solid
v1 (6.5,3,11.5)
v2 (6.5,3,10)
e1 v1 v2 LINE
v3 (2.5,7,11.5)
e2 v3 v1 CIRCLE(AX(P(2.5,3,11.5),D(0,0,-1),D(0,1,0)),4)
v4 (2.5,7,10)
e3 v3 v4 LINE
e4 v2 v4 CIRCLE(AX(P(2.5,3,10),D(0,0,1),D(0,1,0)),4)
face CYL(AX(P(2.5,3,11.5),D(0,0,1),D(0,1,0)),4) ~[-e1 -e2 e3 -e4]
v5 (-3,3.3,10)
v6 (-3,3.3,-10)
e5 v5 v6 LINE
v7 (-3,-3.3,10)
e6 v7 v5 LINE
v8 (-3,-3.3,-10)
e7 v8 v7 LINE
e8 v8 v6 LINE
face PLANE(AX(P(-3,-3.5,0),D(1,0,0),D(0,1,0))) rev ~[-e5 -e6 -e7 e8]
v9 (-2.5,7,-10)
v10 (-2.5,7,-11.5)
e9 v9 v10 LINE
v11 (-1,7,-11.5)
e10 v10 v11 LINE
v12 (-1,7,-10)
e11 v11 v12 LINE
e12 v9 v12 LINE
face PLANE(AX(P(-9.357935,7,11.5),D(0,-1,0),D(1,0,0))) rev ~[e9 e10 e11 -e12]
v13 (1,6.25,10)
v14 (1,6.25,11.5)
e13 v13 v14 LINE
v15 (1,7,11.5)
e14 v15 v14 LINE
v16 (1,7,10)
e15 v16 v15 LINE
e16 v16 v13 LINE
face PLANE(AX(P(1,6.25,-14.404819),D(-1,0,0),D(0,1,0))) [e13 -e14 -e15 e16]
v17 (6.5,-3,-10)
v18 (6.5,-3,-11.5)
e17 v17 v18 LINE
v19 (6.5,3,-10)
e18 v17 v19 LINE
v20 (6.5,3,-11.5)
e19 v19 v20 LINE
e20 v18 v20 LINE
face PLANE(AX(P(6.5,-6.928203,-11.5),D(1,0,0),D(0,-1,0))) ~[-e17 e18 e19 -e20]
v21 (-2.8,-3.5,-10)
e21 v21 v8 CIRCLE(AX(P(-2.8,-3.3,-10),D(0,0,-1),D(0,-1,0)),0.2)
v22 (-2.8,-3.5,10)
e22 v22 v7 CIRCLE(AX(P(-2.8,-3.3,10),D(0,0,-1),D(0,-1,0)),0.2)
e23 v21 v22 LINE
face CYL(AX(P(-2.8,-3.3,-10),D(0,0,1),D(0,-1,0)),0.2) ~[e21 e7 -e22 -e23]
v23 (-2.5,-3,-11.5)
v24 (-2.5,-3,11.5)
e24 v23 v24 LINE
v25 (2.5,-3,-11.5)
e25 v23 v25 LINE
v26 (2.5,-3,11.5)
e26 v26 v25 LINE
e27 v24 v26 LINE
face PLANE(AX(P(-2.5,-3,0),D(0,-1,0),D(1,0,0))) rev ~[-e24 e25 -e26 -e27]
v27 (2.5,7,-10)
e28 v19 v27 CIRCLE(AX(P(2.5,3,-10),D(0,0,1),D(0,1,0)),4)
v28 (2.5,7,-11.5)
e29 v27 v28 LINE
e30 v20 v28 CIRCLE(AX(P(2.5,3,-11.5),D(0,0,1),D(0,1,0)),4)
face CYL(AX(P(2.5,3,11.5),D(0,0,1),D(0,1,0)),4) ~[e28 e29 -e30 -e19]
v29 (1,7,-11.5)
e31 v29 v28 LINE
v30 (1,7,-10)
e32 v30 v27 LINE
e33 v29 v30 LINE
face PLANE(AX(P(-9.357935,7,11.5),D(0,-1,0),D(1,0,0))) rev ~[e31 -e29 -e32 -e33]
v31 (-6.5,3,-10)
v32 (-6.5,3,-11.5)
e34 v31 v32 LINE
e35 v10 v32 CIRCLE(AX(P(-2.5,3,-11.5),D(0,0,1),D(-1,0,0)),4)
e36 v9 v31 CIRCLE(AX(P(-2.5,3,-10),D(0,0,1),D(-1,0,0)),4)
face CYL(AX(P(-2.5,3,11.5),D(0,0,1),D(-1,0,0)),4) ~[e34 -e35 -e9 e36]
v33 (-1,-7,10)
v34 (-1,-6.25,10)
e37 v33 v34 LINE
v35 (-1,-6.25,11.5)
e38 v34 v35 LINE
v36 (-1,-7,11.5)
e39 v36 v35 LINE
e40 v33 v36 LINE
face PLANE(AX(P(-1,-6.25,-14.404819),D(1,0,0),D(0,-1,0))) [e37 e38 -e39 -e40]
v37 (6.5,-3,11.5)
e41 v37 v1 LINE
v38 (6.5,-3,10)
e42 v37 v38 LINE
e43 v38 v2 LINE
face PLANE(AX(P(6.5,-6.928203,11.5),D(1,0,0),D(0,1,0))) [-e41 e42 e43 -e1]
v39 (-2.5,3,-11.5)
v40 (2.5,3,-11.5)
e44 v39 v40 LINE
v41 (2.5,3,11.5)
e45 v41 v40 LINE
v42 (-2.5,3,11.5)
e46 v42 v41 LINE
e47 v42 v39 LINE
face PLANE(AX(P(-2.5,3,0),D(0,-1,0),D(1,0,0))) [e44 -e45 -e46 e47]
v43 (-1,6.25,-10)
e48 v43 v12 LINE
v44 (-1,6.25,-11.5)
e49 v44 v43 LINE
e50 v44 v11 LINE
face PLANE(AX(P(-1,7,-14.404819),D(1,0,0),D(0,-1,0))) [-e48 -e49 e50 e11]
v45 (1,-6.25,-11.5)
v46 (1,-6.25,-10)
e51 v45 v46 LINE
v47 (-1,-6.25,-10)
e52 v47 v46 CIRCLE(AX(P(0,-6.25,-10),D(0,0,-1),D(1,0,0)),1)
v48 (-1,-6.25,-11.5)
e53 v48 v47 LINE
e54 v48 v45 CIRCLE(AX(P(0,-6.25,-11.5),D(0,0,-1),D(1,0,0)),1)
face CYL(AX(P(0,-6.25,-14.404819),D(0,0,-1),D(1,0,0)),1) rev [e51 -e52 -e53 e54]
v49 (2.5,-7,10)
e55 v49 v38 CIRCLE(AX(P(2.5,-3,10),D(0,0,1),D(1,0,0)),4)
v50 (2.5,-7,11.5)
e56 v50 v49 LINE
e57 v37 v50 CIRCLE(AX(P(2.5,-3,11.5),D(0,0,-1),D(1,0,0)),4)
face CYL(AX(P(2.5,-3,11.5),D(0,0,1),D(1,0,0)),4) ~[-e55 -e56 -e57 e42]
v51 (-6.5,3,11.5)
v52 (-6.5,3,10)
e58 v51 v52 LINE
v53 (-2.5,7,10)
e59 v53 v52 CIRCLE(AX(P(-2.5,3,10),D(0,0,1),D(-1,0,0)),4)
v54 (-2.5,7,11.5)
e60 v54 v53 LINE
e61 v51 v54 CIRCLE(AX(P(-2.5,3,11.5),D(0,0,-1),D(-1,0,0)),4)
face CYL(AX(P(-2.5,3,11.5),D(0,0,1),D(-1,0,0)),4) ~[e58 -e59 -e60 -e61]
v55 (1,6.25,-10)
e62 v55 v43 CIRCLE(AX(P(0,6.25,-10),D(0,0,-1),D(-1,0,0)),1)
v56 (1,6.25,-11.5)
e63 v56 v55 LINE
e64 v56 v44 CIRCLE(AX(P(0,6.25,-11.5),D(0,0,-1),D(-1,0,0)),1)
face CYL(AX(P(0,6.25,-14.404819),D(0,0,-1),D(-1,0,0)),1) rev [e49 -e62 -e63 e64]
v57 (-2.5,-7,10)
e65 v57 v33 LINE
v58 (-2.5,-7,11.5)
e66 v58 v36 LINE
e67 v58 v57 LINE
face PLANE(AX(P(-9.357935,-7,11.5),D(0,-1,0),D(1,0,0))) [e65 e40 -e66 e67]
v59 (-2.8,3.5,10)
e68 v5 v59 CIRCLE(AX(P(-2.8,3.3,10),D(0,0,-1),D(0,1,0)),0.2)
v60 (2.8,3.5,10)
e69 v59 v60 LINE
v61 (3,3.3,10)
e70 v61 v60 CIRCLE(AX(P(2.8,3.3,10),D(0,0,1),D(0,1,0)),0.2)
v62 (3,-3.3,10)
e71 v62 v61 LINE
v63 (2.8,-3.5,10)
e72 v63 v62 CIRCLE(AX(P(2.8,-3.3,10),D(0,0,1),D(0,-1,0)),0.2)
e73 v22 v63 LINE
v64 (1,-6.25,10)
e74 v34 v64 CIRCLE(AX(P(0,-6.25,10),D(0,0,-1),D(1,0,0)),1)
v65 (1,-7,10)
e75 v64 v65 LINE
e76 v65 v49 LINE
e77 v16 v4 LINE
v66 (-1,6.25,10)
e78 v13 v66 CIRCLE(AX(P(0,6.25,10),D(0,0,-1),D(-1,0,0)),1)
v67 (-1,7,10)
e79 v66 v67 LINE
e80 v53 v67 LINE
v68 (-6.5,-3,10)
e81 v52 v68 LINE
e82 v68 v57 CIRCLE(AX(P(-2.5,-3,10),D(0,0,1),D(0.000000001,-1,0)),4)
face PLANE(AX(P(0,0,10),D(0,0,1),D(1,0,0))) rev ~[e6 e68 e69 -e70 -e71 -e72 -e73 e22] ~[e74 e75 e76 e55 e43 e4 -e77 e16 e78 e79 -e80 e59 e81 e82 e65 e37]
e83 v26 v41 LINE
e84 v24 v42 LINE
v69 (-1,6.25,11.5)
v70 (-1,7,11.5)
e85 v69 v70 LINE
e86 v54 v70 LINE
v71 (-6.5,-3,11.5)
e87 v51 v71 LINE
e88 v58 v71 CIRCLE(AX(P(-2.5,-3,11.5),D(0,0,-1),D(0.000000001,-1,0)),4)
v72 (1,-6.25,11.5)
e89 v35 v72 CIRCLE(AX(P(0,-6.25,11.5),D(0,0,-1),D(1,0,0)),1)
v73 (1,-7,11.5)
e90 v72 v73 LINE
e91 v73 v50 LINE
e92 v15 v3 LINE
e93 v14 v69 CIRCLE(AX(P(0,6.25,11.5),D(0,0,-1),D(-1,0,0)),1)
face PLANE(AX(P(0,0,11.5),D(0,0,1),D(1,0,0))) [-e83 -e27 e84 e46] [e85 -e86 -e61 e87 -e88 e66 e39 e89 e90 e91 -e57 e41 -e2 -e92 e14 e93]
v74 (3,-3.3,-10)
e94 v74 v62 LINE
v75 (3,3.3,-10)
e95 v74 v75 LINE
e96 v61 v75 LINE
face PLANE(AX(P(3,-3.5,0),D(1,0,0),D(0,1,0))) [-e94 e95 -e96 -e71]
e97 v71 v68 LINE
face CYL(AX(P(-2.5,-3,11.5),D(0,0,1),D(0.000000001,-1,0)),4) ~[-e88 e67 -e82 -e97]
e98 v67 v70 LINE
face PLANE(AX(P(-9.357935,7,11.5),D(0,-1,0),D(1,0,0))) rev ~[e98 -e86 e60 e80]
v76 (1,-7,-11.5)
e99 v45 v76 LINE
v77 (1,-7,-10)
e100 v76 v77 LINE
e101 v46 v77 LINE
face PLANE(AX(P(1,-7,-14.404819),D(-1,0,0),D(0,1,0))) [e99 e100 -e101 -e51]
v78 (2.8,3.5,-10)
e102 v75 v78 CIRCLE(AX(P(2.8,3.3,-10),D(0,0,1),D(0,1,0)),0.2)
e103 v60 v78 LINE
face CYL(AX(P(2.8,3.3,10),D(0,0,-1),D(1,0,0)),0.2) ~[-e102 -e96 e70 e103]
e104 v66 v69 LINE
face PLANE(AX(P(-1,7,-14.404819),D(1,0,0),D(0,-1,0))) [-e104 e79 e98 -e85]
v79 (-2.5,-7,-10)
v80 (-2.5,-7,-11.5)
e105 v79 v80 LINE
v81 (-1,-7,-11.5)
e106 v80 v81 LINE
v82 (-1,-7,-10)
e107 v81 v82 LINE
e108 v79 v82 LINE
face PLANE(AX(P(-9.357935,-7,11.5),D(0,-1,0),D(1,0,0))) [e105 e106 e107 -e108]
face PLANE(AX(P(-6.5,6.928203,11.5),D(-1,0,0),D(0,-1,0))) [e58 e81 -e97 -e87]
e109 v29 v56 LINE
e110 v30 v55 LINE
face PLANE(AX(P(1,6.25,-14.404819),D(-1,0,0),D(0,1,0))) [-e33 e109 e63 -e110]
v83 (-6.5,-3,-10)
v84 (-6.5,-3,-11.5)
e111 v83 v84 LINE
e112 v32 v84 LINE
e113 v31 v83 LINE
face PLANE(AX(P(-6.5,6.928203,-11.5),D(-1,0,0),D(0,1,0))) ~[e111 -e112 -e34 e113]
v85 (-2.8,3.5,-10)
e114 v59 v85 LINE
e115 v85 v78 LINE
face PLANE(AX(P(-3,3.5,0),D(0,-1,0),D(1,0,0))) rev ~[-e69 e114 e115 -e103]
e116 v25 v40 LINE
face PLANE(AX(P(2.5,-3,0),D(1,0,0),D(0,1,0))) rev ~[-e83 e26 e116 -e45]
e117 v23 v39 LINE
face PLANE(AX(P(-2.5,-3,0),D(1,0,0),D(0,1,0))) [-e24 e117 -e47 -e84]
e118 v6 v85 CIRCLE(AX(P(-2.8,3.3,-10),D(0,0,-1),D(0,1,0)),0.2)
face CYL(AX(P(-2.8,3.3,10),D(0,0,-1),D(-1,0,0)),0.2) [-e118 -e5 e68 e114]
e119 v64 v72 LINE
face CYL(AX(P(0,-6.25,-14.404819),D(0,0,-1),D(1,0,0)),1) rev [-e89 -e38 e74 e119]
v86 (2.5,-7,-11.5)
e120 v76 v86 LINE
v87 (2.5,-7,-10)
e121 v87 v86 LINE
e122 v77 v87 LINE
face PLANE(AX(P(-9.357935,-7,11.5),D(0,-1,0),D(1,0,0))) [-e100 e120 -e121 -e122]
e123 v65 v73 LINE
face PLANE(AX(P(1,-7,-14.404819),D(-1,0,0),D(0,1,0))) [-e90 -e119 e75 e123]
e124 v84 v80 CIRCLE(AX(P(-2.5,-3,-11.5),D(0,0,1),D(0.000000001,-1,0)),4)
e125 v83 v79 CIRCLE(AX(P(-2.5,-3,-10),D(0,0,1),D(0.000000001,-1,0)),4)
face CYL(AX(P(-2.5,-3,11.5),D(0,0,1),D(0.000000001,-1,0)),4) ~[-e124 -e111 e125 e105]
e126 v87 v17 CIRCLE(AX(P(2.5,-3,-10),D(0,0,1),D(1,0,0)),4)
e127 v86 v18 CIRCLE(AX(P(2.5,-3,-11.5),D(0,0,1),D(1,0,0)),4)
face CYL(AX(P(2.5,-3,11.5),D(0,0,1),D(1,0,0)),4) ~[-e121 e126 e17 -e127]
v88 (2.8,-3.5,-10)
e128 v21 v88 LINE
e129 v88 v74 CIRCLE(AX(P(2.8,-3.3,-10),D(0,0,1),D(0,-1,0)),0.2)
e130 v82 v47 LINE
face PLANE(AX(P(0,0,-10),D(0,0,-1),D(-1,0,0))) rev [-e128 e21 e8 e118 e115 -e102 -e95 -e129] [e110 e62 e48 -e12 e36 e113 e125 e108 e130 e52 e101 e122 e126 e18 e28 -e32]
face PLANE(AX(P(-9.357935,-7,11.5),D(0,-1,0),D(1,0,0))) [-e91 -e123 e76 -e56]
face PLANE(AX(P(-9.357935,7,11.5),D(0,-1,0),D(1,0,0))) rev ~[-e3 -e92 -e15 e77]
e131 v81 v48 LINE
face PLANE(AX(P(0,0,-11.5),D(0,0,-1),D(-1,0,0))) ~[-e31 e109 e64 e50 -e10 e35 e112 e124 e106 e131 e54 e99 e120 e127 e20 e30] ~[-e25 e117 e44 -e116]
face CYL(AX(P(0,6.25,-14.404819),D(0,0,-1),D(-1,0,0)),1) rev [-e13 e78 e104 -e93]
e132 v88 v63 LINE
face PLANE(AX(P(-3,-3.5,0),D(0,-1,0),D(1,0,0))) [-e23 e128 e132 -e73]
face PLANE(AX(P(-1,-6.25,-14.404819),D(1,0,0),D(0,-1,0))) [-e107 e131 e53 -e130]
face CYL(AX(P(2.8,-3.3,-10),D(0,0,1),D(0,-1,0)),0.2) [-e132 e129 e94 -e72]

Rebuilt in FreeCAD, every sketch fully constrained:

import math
import FreeCAD as App
import Part
import Sketcher
from FreeCAD import Vector


def edges_at(feature, points):
    """Names of the edges that pass closest to the given points."""
    edges = feature.Shape.Edges
    near = lambda p: min(range(len(edges)), key=lambda i: edges[i].distToShape(Part.Vertex(*p))[0])
    return sorted({f"Edge{near(p) + 1}" for p in points})


def add_polygon(sketch, points):
    """Adds a closed chain of lines whose ends are joined by coincident constraints."""
    first, n = sketch.GeometryCount, len(points)
    for a, b in zip(points, points[1:] + points[:1]):
        sketch.addGeometry(Part.LineSegment(App.Vector(*a, 0), App.Vector(*b, 0)), False)
    for i in range(n):
        sketch.addConstraint(Sketcher.Constraint("Coincident", first + i, 2, first + (i + 1) % n, 1))

doc = App.newDocument("Part")
body = doc.addObject("PartDesign::Body", "Body")

sketch1 = body.newObject("Sketcher::SketchObject", "Sketch")
sketch1.AttachmentSupport = (doc.getObject("XY_Plane"), [""])
sketch1.MapMode = "FlatFace"
add_polygon(sketch1, [(-3, 3.5), (-3, -3.5), (3, -3.5), (3, 3.5)])
add_polygon(sketch1, [(2.5, -3), (-2.5, -3), (-2.5, 3), (2.5, 3)])
sketch1.addConstraint(Sketcher.Constraint("Vertical", 0))
sketch1.addConstraint(Sketcher.Constraint("Horizontal", 1))
sketch1.addConstraint(Sketcher.Constraint("Vertical", 2))
sketch1.addConstraint(Sketcher.Constraint("Horizontal", 3))
sketch1.addConstraint(Sketcher.Constraint("Horizontal", 4))
sketch1.addConstraint(Sketcher.Constraint("Vertical", 5))
sketch1.addConstraint(Sketcher.Constraint("Horizontal", 6))
sketch1.addConstraint(Sketcher.Constraint("Vertical", 7))
sketch1.addConstraint(Sketcher.Constraint("Symmetric", 0, 2, 2, 2, -1, 1))
sketch1.addConstraint(Sketcher.Constraint("Symmetric", 4, 2, 6, 2, -1, 1))
sketch1.addConstraint(Sketcher.Constraint("Equal", 3, 5))
sketch1.addConstraint(Sketcher.Constraint("DistanceX", 1, 1, 1, 2, 6.0))
sketch1.addConstraint(Sketcher.Constraint("DistanceX", 4, 2, 4, 1, 5.0))
sketch1.addConstraint(Sketcher.Constraint("DistanceY", 0, 2, 0, 1, 7.0))
pad1 = body.newObject("PartDesign::Pad", "Pad")
pad1.Profile = sketch1
pad1.Length = 23
pad1.Midplane = True

sketch2 = body.newObject("Sketcher::SketchObject", "Sketch001")
sketch2.AttachmentSupport = (doc.getObject("XY_Plane"), [""])
sketch2.MapMode = "FlatFace"
sketch2.AttachmentOffset = App.Placement(Vector(0, 0, 11.5), App.Rotation())
sketch2.addGeometry(Part.LineSegment(Vector(-6.5, 6.928203, 0), Vector(-6.5, -6.928203, 0)), False)
sketch2.addGeometry(Part.ArcOfCircle(Part.Circle(Vector(0, 0, 0), Vector(0, 0, 1), 9.5), math.radians(-133.173551), math.radians(-46.826449)), False)
sketch2.addGeometry(Part.LineSegment(Vector(6.5, -6.928203, 0), Vector(6.5, 6.928203, 0)), False)
sketch2.addGeometry(Part.ArcOfCircle(Part.Circle(Vector(0, 0, 0), Vector(0, 0, 1), 9.5), math.radians(46.826449), math.radians(133.173551)), False)
add_polygon(sketch2, [(3, -3.5), (-3, -3.5), (-3, 3.5), (3, 3.5)])
sketch2.addConstraint(Sketcher.Constraint("Coincident", 0, 2, 1, 1))
sketch2.addConstraint(Sketcher.Constraint("Coincident", 1, 2, 2, 1))
sketch2.addConstraint(Sketcher.Constraint("Coincident", 2, 2, 3, 1))
sketch2.addConstraint(Sketcher.Constraint("Coincident", 3, 2, 0, 1))
sketch2.addConstraint(Sketcher.Constraint("Vertical", 0))
sketch2.addConstraint(Sketcher.Constraint("Vertical", 2))
sketch2.addConstraint(Sketcher.Constraint("Horizontal", 4))
sketch2.addConstraint(Sketcher.Constraint("Vertical", 5))
sketch2.addConstraint(Sketcher.Constraint("Horizontal", 6))
sketch2.addConstraint(Sketcher.Constraint("Vertical", 7))
sketch2.addConstraint(Sketcher.Constraint("Coincident", 1, 3, -1, 1))
sketch2.addConstraint(Sketcher.Constraint("Coincident", 3, 3, -1, 1))
sketch2.addConstraint(Sketcher.Constraint("Equal", 1, 3))
sketch2.addConstraint(Sketcher.Constraint("Symmetric", 4, 2, 6, 2, -1, 1))
sketch2.addConstraint(Sketcher.Constraint("Horizontal", 0, 2, 1, 2))
sketch2.addConstraint(Sketcher.Constraint("Radius", 1, 9.5))
sketch2.addConstraint(Sketcher.Constraint("DistanceX", 4, 2, 4, 1, 6.0))
sketch2.addConstraint(Sketcher.Constraint("DistanceY", 5, 1, 5, 2, 7.0))
sketch2.addConstraint(Sketcher.Constraint("DistanceX", 0, 2, 1, 2, 13.0))
pad2 = body.newObject("PartDesign::Pad", "Pad001")
pad2.Profile = sketch2
pad2.Length = 1.5
pad2.Reversed = True
doc.recompute()

mirrored = body.newObject("PartDesign::Mirrored", "Mirrored")
mirrored.Originals = [pad2]
mirrored.MirrorPlane = (doc.getObject("XY_Plane"), [""])
body.Tip = mirrored

sketch3 = body.newObject("Sketcher::SketchObject", "Sketch002")
sketch3.AttachmentSupport = (doc.getObject("XY_Plane"), [""])
sketch3.MapMode = "FlatFace"
sketch3.AttachmentOffset = App.Placement(Vector(0, 0, 11.5), App.Rotation())
sketch3.addGeometry(Part.Circle(Vector(0, 0, 0), Vector(0, 0, 1), 19.100399), False)
add_polygon(sketch3, [(9.357935, -7), (-9.357935, -7), (-9.357935, 7), (9.357935, 7)])
sketch3.addConstraint(Sketcher.Constraint("Horizontal", 1))
sketch3.addConstraint(Sketcher.Constraint("Vertical", 2))
sketch3.addConstraint(Sketcher.Constraint("Horizontal", 3))
sketch3.addConstraint(Sketcher.Constraint("Vertical", 4))
sketch3.addConstraint(Sketcher.Constraint("Coincident", 0, 3, -1, 1))
sketch3.addConstraint(Sketcher.Constraint("Symmetric", 1, 2, 3, 2, -1, 1))
sketch3.addConstraint(Sketcher.Constraint("DistanceY", 2, 1, 2, 2, 14.0))
sketch3.addConstraint(Sketcher.Constraint("Diameter", 0, 38.200797))
sketch3.addConstraint(Sketcher.Constraint("DistanceX", 1, 2, 1, 1, 18.71587))
pocket1 = body.newObject("PartDesign::Pocket", "Pocket")
pocket1.Profile = sketch3
pocket1.Type = "ThroughAll"

sketch4 = body.newObject("Sketcher::SketchObject", "Sketch003")
sketch4.AttachmentSupport = (doc.getObject("XY_Plane"), [""])
sketch4.MapMode = "FlatFace"
sketch4.AttachmentOffset = App.Placement(Vector(0, 0, 11.5), App.Rotation())
sketch4.addGeometry(Part.LineSegment(Vector(-6.5, 6.928203, 0), Vector(-6.5, 3, 0)), False)
sketch4.addGeometry(Part.ArcOfCircle(Part.Circle(Vector(-2.5, 3, 0), Vector(0, 0, 1), 4), math.radians(90), math.radians(180)), False)
sketch4.addGeometry(Part.LineSegment(Vector(-2.5, 7, 0), Vector(-6.422616, 7, 0)), False)
sketch4.addGeometry(Part.ArcOfCircle(Part.Circle(Vector(-0.000003, 0.000003, 0), Vector(0, 0, 1), 9.499995), math.radians(132.536898), math.radians(133.173551)), False)
sketch4.addGeometry(Part.ArcOfCircle(Part.Circle(Vector(2.5, 3, 0), Vector(0, 0, 1), 4), math.radians(0), math.radians(90)), False)
sketch4.addGeometry(Part.LineSegment(Vector(6.5, 3, 0), Vector(6.5, 6.928203, 0)), False)
sketch4.addGeometry(Part.ArcOfCircle(Part.Circle(Vector(0.000003, 0.000003, 0), Vector(0, 0, 1), 9.499995), math.radians(46.826449), math.radians(47.463102)), False)
sketch4.addGeometry(Part.LineSegment(Vector(6.422616, 7, 0), Vector(2.5, 7, 0)), False)
sketch4.addGeometry(Part.ArcOfCircle(Part.Circle(Vector(2.5, -3, 0), Vector(0, 0, 1), 4), math.radians(-90), math.radians(0)), False)
sketch4.addGeometry(Part.LineSegment(Vector(2.5, -7, 0), Vector(6.422616, -7, 0)), False)
sketch4.addGeometry(Part.ArcOfCircle(Part.Circle(Vector(0.000003, -0.000003, 0), Vector(0, 0, 1), 9.499995), math.radians(-47.463102), math.radians(-46.826449)), False)
sketch4.addGeometry(Part.LineSegment(Vector(6.5, -6.928203, 0), Vector(6.5, -3, 0)), False)
sketch4.addGeometry(Part.ArcOfCircle(Part.Circle(Vector(-0.000003, -0.000003, 0), Vector(0, 0, 1), 9.499995), math.radians(-133.173551), math.radians(-132.536898)), False)
sketch4.addGeometry(Part.LineSegment(Vector(-6.422616, -7, 0), Vector(-2.5, -7, 0)), False)
sketch4.addGeometry(Part.ArcOfCircle(Part.Circle(Vector(-2.5, -3, 0), Vector(0, 0, 1), 4), math.radians(180), math.radians(270)), False)
sketch4.addGeometry(Part.LineSegment(Vector(-6.5, -3, 0), Vector(-6.5, -6.928203, 0)), False)
sketch4.addConstraint(Sketcher.Constraint("Tangent", 0, 2, 1, 2))
sketch4.addConstraint(Sketcher.Constraint("Tangent", 1, 1, 2, 1))
sketch4.addConstraint(Sketcher.Constraint("Coincident", 2, 2, 3, 1))
sketch4.addConstraint(Sketcher.Constraint("Coincident", 3, 2, 0, 1))
sketch4.addConstraint(Sketcher.Constraint("Tangent", 4, 1, 5, 1))
sketch4.addConstraint(Sketcher.Constraint("Coincident", 5, 2, 6, 1))
sketch4.addConstraint(Sketcher.Constraint("Coincident", 6, 2, 7, 1))
sketch4.addConstraint(Sketcher.Constraint("Tangent", 7, 2, 4, 2))
sketch4.addConstraint(Sketcher.Constraint("Tangent", 8, 1, 9, 1))
sketch4.addConstraint(Sketcher.Constraint("Coincident", 9, 2, 10, 1))
sketch4.addConstraint(Sketcher.Constraint("Coincident", 10, 2, 11, 1))
sketch4.addConstraint(Sketcher.Constraint("Tangent", 11, 2, 8, 2))
sketch4.addConstraint(Sketcher.Constraint("Coincident", 12, 2, 13, 1))
sketch4.addConstraint(Sketcher.Constraint("Tangent", 13, 2, 14, 2))
sketch4.addConstraint(Sketcher.Constraint("Tangent", 14, 1, 15, 1))
sketch4.addConstraint(Sketcher.Constraint("Coincident", 15, 2, 12, 1))
sketch4.addConstraint(Sketcher.Constraint("Vertical", 0))
sketch4.addConstraint(Sketcher.Constraint("Horizontal", 2))
sketch4.addConstraint(Sketcher.Constraint("Vertical", 5))
sketch4.addConstraint(Sketcher.Constraint("Horizontal", 7))
sketch4.addConstraint(Sketcher.Constraint("Horizontal", 9))
sketch4.addConstraint(Sketcher.Constraint("Vertical", 11))
sketch4.addConstraint(Sketcher.Constraint("Horizontal", 13))
sketch4.addConstraint(Sketcher.Constraint("Vertical", 15))
sketch4.addConstraint(Sketcher.Constraint("Coincident", 3, 3, -1, 1))
sketch4.addConstraint(Sketcher.Constraint("Coincident", 6, 3, -1, 1))
sketch4.addConstraint(Sketcher.Constraint("Coincident", 10, 3, -1, 1))
sketch4.addConstraint(Sketcher.Constraint("Coincident", 12, 3, -1, 1))
sketch4.addConstraint(Sketcher.Constraint("Equal", 1, 4))
sketch4.addConstraint(Sketcher.Constraint("Equal", 3, 6))
sketch4.addConstraint(Sketcher.Constraint("Equal", 4, 8))
sketch4.addConstraint(Sketcher.Constraint("Equal", 6, 10))
sketch4.addConstraint(Sketcher.Constraint("Equal", 10, 12))
sketch4.addConstraint(Sketcher.Constraint("Equal", 8, 14))
sketch4.addConstraint(Sketcher.Constraint("Symmetric", 1, 3, 8, 3, -1, 1))
sketch4.addConstraint(Sketcher.Constraint("Symmetric", 4, 3, 14, 3, -1, 1))
sketch4.addConstraint(Sketcher.Constraint("Symmetric", 1, 3, 4, 3, -2))
sketch4.addConstraint(Sketcher.Constraint("Radius", 1, 4.0))
sketch4.addConstraint(Sketcher.Constraint("DistanceY", -1, 1, 1, 3, 3.0))
sketch4.addConstraint(Sketcher.Constraint("DistanceX", 1, 3, 4, 3, 5.0))
sketch4.addConstraint(Sketcher.Constraint("Radius", 3, 9.499995))
pocket2 = body.newObject("PartDesign::Pocket", "Pocket001")
pocket2.Profile = sketch4
pocket2.Type = "ThroughAll"

sketch5 = body.newObject("Sketcher::SketchObject", "Sketch004")
sketch5.AttachmentSupport = (doc.getObject("XY_Plane"), [""])
sketch5.MapMode = "FlatFace"
sketch5.AttachmentOffset = App.Placement(Vector(0, 0, 11.5), App.Rotation())
sketch5.addGeometry(Part.LineSegment(Vector(1, 6.25, 0), Vector(1, 7, 0)), False)
sketch5.addGeometry(Part.LineSegment(Vector(1, 7, 0), Vector(-1, 7, 0)), False)
sketch5.addGeometry(Part.LineSegment(Vector(-1, 7, 0), Vector(-1, 6.25, 0)), False)
sketch5.addGeometry(Part.ArcOfCircle(Part.Circle(Vector(0, 6.25, 0), Vector(0, 0, 1), 1), math.radians(180), math.radians(360)), False)
sketch5.addGeometry(Part.LineSegment(Vector(1, -7, 0), Vector(1, -6.25, 0)), False)
sketch5.addGeometry(Part.ArcOfCircle(Part.Circle(Vector(0, -6.25, 0), Vector(0, 0, 1), 1), math.radians(0), math.radians(180)), False)
sketch5.addGeometry(Part.LineSegment(Vector(-1, -6.25, 0), Vector(-1, -7, 0)), False)
sketch5.addGeometry(Part.LineSegment(Vector(-1, -7, 0), Vector(1, -7, 0)), False)
sketch5.addConstraint(Sketcher.Constraint("Coincident", 0, 2, 1, 1))
sketch5.addConstraint(Sketcher.Constraint("Coincident", 1, 2, 2, 1))
sketch5.addConstraint(Sketcher.Constraint("Tangent", 2, 2, 3, 1))
sketch5.addConstraint(Sketcher.Constraint("Tangent", 3, 2, 0, 1))
sketch5.addConstraint(Sketcher.Constraint("Tangent", 4, 2, 5, 1))
sketch5.addConstraint(Sketcher.Constraint("Tangent", 5, 2, 6, 1))
sketch5.addConstraint(Sketcher.Constraint("Coincident", 6, 2, 7, 1))
sketch5.addConstraint(Sketcher.Constraint("Coincident", 7, 2, 4, 1))
sketch5.addConstraint(Sketcher.Constraint("Vertical", 0))
sketch5.addConstraint(Sketcher.Constraint("Horizontal", 1))
sketch5.addConstraint(Sketcher.Constraint("Vertical", 2))
sketch5.addConstraint(Sketcher.Constraint("Vertical", 4))
sketch5.addConstraint(Sketcher.Constraint("Vertical", 6))
sketch5.addConstraint(Sketcher.Constraint("Horizontal", 7))
sketch5.addConstraint(Sketcher.Constraint("Equal", 3, 5))
sketch5.addConstraint(Sketcher.Constraint("Symmetric", 3, 3, 5, 3, -1, 1))
sketch5.addConstraint(Sketcher.Constraint("Symmetric", 1, 2, 6, 2, -1))
sketch5.addConstraint(Sketcher.Constraint("Radius", 3, 1.0))
sketch5.addConstraint(Sketcher.Constraint("DistanceY", -1, 1, 0, 2, 7.0))
sketch5.addConstraint(Sketcher.Constraint("DistanceY", 0, 1, 0, 2, 0.75))
pocket3 = body.newObject("PartDesign::Pocket", "Pocket002")
pocket3.Profile = sketch5
pocket3.Type = "ThroughAll"
pocket3.Midplane = True
doc.recompute()

fillet = body.newObject("PartDesign::Fillet", "Fillet")
fillet.Base = (pocket3, edges_at(pocket3, [
    (-3, 3.5, 0),
    (3, 3.5, 0),
    (3, -3.5, 0),
    (-3, -3.5, 0),
]))
fillet.Radius = 0.2

doc.recompute()
